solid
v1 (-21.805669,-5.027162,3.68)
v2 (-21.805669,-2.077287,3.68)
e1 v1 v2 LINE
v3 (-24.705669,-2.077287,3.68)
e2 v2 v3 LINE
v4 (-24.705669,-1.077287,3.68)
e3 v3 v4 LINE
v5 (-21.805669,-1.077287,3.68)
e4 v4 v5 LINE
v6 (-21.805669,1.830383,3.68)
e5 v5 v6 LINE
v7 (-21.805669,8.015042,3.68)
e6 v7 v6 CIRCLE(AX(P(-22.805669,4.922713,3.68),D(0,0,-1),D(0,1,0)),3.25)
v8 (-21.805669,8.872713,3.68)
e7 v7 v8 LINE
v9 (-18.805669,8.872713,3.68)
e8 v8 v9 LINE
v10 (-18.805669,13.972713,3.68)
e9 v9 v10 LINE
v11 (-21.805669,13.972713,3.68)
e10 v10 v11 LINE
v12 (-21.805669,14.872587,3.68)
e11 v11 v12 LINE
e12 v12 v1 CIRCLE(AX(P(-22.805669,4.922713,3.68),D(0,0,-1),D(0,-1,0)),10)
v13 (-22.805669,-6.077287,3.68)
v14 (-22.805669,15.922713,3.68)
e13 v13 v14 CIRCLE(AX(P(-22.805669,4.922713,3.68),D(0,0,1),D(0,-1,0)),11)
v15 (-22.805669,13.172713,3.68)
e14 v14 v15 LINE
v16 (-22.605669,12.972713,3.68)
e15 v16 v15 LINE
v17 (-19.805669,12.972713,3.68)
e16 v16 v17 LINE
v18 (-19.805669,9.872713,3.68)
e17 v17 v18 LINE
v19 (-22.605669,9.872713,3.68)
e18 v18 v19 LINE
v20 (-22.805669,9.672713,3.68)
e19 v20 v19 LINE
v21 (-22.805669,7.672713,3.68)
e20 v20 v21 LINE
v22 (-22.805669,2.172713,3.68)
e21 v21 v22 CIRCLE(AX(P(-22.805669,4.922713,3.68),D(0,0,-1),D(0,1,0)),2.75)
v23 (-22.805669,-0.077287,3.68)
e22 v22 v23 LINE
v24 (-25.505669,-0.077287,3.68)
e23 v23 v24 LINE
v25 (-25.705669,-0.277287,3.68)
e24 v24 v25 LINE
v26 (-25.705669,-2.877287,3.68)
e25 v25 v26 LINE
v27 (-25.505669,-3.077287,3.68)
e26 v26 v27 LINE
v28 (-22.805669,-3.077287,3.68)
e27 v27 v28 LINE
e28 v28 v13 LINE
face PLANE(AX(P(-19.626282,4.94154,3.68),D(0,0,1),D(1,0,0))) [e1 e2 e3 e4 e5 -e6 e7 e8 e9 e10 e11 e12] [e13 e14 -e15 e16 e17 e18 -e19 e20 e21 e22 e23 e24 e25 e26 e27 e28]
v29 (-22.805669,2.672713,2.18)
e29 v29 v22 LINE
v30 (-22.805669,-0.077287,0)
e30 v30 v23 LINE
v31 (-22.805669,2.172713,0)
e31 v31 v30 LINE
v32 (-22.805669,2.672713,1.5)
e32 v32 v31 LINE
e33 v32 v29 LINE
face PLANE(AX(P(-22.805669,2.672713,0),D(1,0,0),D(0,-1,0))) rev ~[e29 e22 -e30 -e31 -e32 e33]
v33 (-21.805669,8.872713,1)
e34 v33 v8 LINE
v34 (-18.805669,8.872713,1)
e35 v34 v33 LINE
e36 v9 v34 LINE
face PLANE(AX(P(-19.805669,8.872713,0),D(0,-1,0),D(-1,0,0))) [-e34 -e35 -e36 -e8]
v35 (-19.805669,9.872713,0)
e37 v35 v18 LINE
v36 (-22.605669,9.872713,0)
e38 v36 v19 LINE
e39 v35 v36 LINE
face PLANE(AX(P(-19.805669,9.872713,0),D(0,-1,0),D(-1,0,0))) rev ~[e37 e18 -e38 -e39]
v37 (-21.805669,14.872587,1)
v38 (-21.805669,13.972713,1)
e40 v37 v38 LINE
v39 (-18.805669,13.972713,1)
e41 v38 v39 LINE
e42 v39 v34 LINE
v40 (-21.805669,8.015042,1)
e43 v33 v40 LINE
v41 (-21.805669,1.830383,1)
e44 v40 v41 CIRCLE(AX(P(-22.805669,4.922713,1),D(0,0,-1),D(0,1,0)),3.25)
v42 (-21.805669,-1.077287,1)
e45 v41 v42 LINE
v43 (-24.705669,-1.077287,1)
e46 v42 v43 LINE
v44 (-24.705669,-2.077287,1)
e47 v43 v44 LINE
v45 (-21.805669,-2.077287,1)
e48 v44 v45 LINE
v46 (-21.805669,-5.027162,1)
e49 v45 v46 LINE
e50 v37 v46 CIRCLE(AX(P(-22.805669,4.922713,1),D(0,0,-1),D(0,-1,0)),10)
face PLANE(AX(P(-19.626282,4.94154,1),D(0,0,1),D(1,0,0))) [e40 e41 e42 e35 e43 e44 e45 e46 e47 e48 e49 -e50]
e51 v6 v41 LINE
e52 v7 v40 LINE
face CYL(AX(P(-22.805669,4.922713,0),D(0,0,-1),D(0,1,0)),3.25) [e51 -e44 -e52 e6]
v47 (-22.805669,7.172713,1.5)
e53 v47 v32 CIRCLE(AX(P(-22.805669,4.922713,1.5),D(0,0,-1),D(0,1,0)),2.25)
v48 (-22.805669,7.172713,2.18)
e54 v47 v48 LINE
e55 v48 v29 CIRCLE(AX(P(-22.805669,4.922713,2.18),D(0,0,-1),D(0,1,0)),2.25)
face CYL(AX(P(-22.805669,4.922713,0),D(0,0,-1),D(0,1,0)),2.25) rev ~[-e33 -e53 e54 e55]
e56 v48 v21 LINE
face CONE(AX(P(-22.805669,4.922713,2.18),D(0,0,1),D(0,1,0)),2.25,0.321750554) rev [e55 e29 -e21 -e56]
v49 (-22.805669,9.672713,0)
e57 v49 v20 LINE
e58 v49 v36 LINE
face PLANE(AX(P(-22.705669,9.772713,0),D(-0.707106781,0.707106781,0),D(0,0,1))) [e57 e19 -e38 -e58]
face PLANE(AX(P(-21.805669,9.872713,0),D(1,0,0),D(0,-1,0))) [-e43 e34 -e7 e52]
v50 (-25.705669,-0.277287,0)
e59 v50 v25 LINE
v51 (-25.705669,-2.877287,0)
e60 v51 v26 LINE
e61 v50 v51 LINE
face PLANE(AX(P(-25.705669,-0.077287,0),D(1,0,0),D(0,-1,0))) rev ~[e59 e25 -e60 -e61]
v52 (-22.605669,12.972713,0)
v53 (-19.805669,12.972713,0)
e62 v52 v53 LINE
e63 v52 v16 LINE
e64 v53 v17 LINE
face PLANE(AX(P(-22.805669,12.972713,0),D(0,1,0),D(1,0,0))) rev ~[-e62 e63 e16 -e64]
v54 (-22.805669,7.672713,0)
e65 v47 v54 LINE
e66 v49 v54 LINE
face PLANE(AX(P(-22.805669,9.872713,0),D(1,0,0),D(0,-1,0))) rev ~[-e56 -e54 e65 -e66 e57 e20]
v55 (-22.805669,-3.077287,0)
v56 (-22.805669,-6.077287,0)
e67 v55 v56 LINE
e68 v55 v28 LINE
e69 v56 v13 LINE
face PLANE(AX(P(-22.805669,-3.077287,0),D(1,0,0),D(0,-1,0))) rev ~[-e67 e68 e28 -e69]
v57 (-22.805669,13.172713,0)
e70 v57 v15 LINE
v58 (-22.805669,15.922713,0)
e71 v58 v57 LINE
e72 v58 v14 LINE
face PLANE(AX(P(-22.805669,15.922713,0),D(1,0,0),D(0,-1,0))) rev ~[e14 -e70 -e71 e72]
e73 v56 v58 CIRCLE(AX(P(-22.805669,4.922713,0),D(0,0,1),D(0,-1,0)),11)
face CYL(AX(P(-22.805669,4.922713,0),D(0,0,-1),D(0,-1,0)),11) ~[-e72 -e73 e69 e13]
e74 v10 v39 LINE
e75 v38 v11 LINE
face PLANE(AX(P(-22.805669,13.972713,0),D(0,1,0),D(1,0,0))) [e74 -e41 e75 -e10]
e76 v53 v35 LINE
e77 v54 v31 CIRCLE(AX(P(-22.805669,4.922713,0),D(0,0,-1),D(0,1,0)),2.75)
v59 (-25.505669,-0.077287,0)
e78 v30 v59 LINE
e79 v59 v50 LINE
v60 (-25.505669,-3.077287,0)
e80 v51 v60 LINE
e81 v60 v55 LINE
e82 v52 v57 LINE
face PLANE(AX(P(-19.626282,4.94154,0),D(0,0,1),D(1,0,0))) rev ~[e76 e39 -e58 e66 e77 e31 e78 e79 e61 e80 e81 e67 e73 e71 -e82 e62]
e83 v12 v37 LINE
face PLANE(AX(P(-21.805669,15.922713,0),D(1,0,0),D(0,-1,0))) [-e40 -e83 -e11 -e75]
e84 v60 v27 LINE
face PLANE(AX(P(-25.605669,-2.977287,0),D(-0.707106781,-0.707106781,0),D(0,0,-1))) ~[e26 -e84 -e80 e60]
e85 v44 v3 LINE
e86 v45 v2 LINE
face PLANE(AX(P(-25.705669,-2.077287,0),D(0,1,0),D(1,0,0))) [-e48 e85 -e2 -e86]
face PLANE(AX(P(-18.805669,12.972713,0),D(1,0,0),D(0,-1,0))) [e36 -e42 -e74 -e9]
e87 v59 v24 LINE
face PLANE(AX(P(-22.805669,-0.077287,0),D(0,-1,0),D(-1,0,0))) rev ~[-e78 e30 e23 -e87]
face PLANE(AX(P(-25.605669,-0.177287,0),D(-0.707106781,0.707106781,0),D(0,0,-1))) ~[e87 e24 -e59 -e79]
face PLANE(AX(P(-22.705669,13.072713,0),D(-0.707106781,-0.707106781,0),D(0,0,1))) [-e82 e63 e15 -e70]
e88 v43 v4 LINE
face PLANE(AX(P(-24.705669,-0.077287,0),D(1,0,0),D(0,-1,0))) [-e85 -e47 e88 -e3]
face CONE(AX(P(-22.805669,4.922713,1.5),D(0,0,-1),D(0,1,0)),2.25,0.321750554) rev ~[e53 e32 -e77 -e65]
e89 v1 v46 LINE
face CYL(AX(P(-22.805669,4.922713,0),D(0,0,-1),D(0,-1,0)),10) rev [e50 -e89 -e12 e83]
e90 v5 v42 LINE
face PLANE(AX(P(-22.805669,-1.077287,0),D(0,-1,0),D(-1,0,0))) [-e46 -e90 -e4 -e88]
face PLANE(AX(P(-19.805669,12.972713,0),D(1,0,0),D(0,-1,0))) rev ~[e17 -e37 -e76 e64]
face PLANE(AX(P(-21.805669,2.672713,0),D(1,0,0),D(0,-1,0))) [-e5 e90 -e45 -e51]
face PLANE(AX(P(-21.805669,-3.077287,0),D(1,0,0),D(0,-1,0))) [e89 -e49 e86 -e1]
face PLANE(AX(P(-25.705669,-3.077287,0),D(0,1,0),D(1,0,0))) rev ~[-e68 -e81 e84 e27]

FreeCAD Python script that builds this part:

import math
import FreeCAD as App
import Part
import Sketcher


def edges_at(feature, points):
    """Names of the edges that pass closest to the given points."""
    edges = feature.Shape.Edges
    near = lambda p: min(range(len(edges)), key=lambda i: edges[i].distToShape(Part.Vertex(*p))[0])
    return sorted({f"Edge{near(p) + 1}" for p in points})


def faces_at(feature, points):
    """Names of the faces that lie closest to the given points."""
    faces = feature.Shape.Faces
    near = lambda p: min(range(len(faces)), key=lambda i: faces[i].distToShape(Part.Vertex(*p))[0])
    return sorted({f"Face{near(p) + 1}" for p in points})

doc = App.newDocument("Part")
body = doc.addObject("PartDesign::Body", "Body")

# Sketch on XY plane
sketch1 = body.newObject("Sketcher::SketchObject", "Sketch")
sketch1.AttachmentSupport = (doc.getObject("XY_Plane"), [""])
sketch1.MapMode = "FlatFace"
sketch1.addGeometry(Part.LineSegment(App.Vector(-22.8, -3.1, 0), App.Vector(-22.8, -6.1, 0)), False)
sketch1.addGeometry(Part.ArcOfCircle(Part.Circle(App.Vector(-22.8, 4.9, 0), App.Vector(0, 0, 1), 11), math.radians(-90), math.radians(90)), False)
sketch1.addGeometry(Part.LineSegment(App.Vector(-22.8, 15.9, 0), App.Vector(-22.8, 13, 0)), False)
sketch1.addGeometry(Part.LineSegment(App.Vector(-22.8, 13, 0), App.Vector(-19.8, 13, 0)), False)
sketch1.addGeometry(Part.LineSegment(App.Vector(-19.8, 13, 0), App.Vector(-19.8, 9.9, 0)), False)
sketch1.addGeometry(Part.LineSegment(App.Vector(-19.8, 9.9, 0), App.Vector(-22.8, 9.9, 0)), False)
sketch1.addGeometry(Part.LineSegment(App.Vector(-22.8, 9.9, 0), App.Vector(-22.8, 7.2, 0)), False)
sketch1.addGeometry(Part.ArcOfCircle(Part.Circle(App.Vector(-22.8, 4.9, 0), App.Vector(0, 0, 1), 2.2), math.radians(-90), math.radians(90)), False)
sketch1.addGeometry(Part.LineSegment(App.Vector(-22.8, 2.7, 0), App.Vector(-22.8, -0.1, 0)), False)
sketch1.addGeometry(Part.LineSegment(App.Vector(-22.8, -0.1, 0), App.Vector(-25.7, -0.1, 0)), False)
sketch1.addGeometry(Part.LineSegment(App.Vector(-25.7, -0.1, 0), App.Vector(-25.7, -3.1, 0)), False)
sketch1.addGeometry(Part.LineSegment(App.Vector(-25.7, -3.1, 0), App.Vector(-22.8, -3.1, 0)), False)
sketch1.addConstraint(Sketcher.Constraint("Coincident", 0, 2, 1, 1))
sketch1.addConstraint(Sketcher.Constraint("Coincident", 1, 2, 2, 1))
sketch1.addConstraint(Sketcher.Constraint("Coincident", 2, 2, 3, 1))
sketch1.addConstraint(Sketcher.Constraint("Coincident", 3, 2, 4, 1))
sketch1.addConstraint(Sketcher.Constraint("Coincident", 4, 2, 5, 1))
sketch1.addConstraint(Sketcher.Constraint("Coincident", 5, 2, 6, 1))
sketch1.addConstraint(Sketcher.Constraint("Coincident", 6, 2, 7, 2))
sketch1.addConstraint(Sketcher.Constraint("Coincident", 7, 1, 8, 1))
sketch1.addConstraint(Sketcher.Constraint("Coincident", 8, 2, 9, 1))
sketch1.addConstraint(Sketcher.Constraint("Coincident", 9, 2, 10, 1))
sketch1.addConstraint(Sketcher.Constraint("Coincident", 10, 2, 11, 1))
sketch1.addConstraint(Sketcher.Constraint("Coincident", 11, 2, 0, 1))
sketch1.addConstraint(Sketcher.Constraint("Vertical", 0))
sketch1.addConstraint(Sketcher.Constraint("Vertical", 2))
sketch1.addConstraint(Sketcher.Constraint("Horizontal", 3))
sketch1.addConstraint(Sketcher.Constraint("Vertical", 4))
sketch1.addConstraint(Sketcher.Constraint("Horizontal", 5))
sketch1.addConstraint(Sketcher.Constraint("Vertical", 6))
sketch1.addConstraint(Sketcher.Constraint("Vertical", 8))
sketch1.addConstraint(Sketcher.Constraint("Horizontal", 9))
sketch1.addConstraint(Sketcher.Constraint("Vertical", 10))
sketch1.addConstraint(Sketcher.Constraint("Horizontal", 11))
sketch1.addConstraint(Sketcher.Constraint("Coincident", 7, 3, 1, 3))
sketch1.addConstraint(Sketcher.Constraint("Vertical", 7, 3, 0, 2))
sketch1.addConstraint(Sketcher.Constraint("Vertical", 0, 2, 1, 2))
sketch1.addConstraint(Sketcher.Constraint("Vertical", 2, 2, 5, 2))
sketch1.addConstraint(Sketcher.Constraint("Vertical", 6, 2, 7, 1))
sketch1.addConstraint(Sketcher.Constraint("Equal", 5, 0))
sketch1.addConstraint(Sketcher.Constraint("Equal", 0, 10))
sketch1.addConstraint(Sketcher.Constraint("Radius", 1, 11.0))
sketch1.addConstraint(Sketcher.Constraint("DistanceX", 3, 1, 3, 2, 3.0))
sketch1.addConstraint(Sketcher.Constraint("Radius", 7, 2.25))
sketch1.addConstraint(Sketcher.Constraint("DistanceX", 9, 2, 9, 1, 2.9))
sketch1.addConstraint(Sketcher.Constraint("DistanceY", 4, 2, 4, 1, 3.1))
sketch1.addConstraint(Sketcher.Constraint("DistanceY", 6, 2, 6, 1, 2.7))
sketch1.addConstraint(Sketcher.Constraint("DistanceX", 1, 3, -1, 1, 22.805669))
sketch1.addConstraint(Sketcher.Constraint("DistanceY", -1, 1, 1, 3, 4.922713))
pad1 = body.newObject("PartDesign::Pad", "Pad")
pad1.Profile = sketch1
pad1.Length = 3.68
doc.recompute()

thickness = body.newObject("PartDesign::Thickness", "Thickness")
thickness.Base = (pad1, faces_at(pad1, [(-18.756, 4.923, 3.68)]))
thickness.Value = 1
thickness.Reversed = True
thickness.Join = "Intersection"
doc.recompute()

chamfer = body.newObject("PartDesign::Chamfer", "Chamfer")
chamfer.Base = (thickness, edges_at(thickness, [(-20.556, 4.923, 3.68), (-20.556, 4.923, 0)]))
chamfer.ChamferType = "Two distances"
chamfer.Size = 1.5
chamfer.Size2 = 0.5
doc.recompute()

chamfer2 = body.newObject("PartDesign::Chamfer", "Chamfer001")
chamfer2.Base = (chamfer, edges_at(chamfer, [
    (-25.706, -0.077, 1.84),
    (-25.706, -3.077, 1.84),
    (-22.806, 9.873, 1.84),
    (-22.806, 12.973, 1.84),
]))
chamfer2.Size = 0.2

doc.recompute()
